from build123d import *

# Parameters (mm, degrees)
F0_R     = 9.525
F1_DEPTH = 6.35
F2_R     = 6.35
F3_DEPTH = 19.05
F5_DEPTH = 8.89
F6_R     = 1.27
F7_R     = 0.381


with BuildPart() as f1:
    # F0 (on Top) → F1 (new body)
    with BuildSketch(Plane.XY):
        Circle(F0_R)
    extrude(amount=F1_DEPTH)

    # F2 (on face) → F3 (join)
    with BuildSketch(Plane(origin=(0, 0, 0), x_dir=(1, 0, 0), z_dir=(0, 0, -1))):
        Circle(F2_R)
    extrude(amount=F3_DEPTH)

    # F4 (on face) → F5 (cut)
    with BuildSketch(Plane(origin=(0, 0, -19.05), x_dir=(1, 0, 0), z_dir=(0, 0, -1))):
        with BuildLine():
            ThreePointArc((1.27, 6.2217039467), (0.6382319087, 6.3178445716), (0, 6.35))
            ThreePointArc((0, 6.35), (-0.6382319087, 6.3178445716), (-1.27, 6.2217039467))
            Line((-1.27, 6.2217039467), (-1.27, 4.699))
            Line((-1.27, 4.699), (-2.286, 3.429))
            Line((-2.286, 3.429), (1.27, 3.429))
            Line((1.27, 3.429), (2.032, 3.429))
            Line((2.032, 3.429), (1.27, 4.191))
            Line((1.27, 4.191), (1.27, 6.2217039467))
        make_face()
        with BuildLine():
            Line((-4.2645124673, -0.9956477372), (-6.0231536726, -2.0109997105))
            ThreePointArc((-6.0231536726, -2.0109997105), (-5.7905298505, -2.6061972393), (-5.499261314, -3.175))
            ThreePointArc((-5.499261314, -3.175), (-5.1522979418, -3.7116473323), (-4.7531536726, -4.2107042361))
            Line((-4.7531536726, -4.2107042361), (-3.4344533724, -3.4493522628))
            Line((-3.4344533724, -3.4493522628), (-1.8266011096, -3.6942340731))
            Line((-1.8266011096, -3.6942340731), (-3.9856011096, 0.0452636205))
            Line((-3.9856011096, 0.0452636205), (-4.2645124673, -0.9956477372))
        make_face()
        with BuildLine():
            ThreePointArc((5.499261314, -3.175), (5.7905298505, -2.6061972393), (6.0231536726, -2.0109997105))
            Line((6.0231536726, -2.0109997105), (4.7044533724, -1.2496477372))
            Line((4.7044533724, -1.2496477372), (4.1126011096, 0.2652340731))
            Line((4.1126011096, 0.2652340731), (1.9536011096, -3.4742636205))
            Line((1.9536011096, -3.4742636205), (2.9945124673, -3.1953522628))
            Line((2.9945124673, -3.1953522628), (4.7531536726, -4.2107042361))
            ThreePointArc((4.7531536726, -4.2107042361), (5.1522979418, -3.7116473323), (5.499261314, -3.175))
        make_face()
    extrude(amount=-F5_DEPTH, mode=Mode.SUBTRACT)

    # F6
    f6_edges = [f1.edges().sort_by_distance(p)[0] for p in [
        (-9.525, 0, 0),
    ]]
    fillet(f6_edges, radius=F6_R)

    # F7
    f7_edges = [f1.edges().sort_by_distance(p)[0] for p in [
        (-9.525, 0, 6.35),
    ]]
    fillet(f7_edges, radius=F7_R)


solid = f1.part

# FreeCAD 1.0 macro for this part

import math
import FreeCAD as App
import Part
import Sketcher
Q = App.Units.Quantity


def edges_at(feature, points):
    """Names of the edges that pass closest to the given points."""
    edges = feature.Shape.Edges
    near = lambda p: min(range(len(edges)), key=lambda i: edges[i].distToShape(Part.Vertex(*p))[0])
    return sorted({f"Edge{near(p) + 1}" for p in points})

doc = App.newDocument("Part")
body = doc.addObject("PartDesign::Body", "Body")

# Sketch on XY plane
sketch1 = body.newObject("Sketcher::SketchObject", "Sketch")
sketch1.AttachmentSupport = (doc.getObject("XY_Plane"), [""])
sketch1.MapMode = "FlatFace"
sketch1.addGeometry(Part.Circle(App.Vector(0, 0, 0), App.Vector(0, 0, 1), 10), False)
sketch1.addConstraint([
    Sketcher.Constraint("Coincident", 0, 3, -1, 1),
    Sketcher.Constraint("Diameter", 0, Q("0.75 in")),
])
pad1 = body.newObject("PartDesign::Pad", "Pad")
pad1.Profile = sketch1
pad1.Length = Q("0.25 in")

# Sketch on XY plane
sketch2 = body.newObject("Sketcher::SketchObject", "Sketch001")
sketch2.AttachmentSupport = (doc.getObject("XY_Plane"), [""])
sketch2.MapMode = "FlatFace"
sketch2.addGeometry(Part.Circle(App.Vector(0, 0, 0), App.Vector(0, 0, 1), 6), False)
sketch2.addConstraint([
    Sketcher.Constraint("Coincident", 0, 3, -1, 1),
    Sketcher.Constraint("Diameter", 0, Q("0.5 in")),
])
pad2 = body.newObject("PartDesign::Pad", "Pad001")
pad2.Profile = sketch2
pad2.Length = Q("0.75 in")
pad2.Reversed = True

# Sketch on XY plane
sketch3 = body.newObject("Sketcher::SketchObject", "Sketch002")
sketch3.AttachmentSupport = (doc.getObject("XY_Plane"), [""])
sketch3.MapMode = "FlatFace"
sketch3.AttachmentOffset = App.Placement(App.Vector(0, 0, -0.75 * 25.4), App.Rotation())
sketch3.addGeometry([
    Part.ArcOfCircle(Part.Circle(App.Vector(0, 0, 0), App.Vector(0, 0, 1), 6.3), math.radians(-90), math.radians(-78.46)),  # 0
    Part.ArcOfCircle(Part.Circle(App.Vector(0, 0, 0), App.Vector(0, 0, 1), 6.3), math.radians(-101.54), math.radians(-90)),  # 1
    Part.LineSegment(App.Vector(-1.3, -6.2, 0), App.Vector(-1.3, -4.7, 0)),  # 2
    Part.LineSegment(App.Vector(-1.3, -4.7, 0), App.Vector(-2.3, -3.4, 0)),  # 3
    Part.LineSegment(App.Vector(-2.3, -3.4, 0), App.Vector(2, -3.4, 0)),  # 4
    Part.LineSegment(App.Vector(2, -3.4, 0), App.Vector(1.3, -4.2, 0)),  # 5
    Part.LineSegment(App.Vector(1.3, -4.2, 0), App.Vector(1.3, -6.2, 0)),  # 6
    Part.LineSegment(App.Vector(-4.3, 1, 0), App.Vector(-6, 2, 0)),  # 7
    Part.ArcOfCircle(Part.Circle(App.Vector(0, 0, 0), App.Vector(0, 0, 1), 6.3), math.radians(150), math.radians(161.54)),  # 8
    Part.ArcOfCircle(Part.Circle(App.Vector(0, 0, 0), App.Vector(0, 0, 1), 6.3), math.radians(138.46), math.radians(150)),  # 9
    Part.LineSegment(App.Vector(-4.8, 4.2, 0), App.Vector(-3.4, 3.4, 0)),  # 10
    Part.LineSegment(App.Vector(-3.4, 3.4, 0), App.Vector(-1.8, 3.7, 0)),  # 11
    Part.LineSegment(App.Vector(-1.8, 3.7, 0), App.Vector(-4, 0, 0)),  # 12
    Part.LineSegment(App.Vector(-4, 0, 0), App.Vector(-4.3, 1, 0)),  # 13
    Part.ArcOfCircle(Part.Circle(App.Vector(0, 0, 0), App.Vector(0, 0, 1), 6.3), math.radians(18.46), math.radians(30)),  # 14
    Part.LineSegment(App.Vector(6, 2, 0), App.Vector(4.7, 1.2, 0)),  # 15
    Part.LineSegment(App.Vector(4.7, 1.2, 0), App.Vector(4.1, -0.3, 0)),  # 16
    Part.LineSegment(App.Vector(4.1, -0.3, 0), App.Vector(2, 3.5, 0)),  # 17
    Part.LineSegment(App.Vector(2, 3.5, 0), App.Vector(3, 3.2, 0)),  # 18
    Part.LineSegment(App.Vector(3, 3.2, 0), App.Vector(4.8, 4.2, 0)),  # 19
    Part.ArcOfCircle(Part.Circle(App.Vector(0, 0, 0), App.Vector(0, 0, 1), 6.3), math.radians(30), math.radians(41.54)),  # 20
], False)
sketch3.addConstraint([
    Sketcher.Constraint("Tangent", 0, 1, 1, 2),
    Sketcher.Constraint("Coincident", 1, 1, 2, 1),
    Sketcher.Constraint("Coincident", 2, 2, 3, 1),
    Sketcher.Constraint("Coincident", 3, 2, 4, 1),
    Sketcher.Constraint("Coincident", 4, 2, 5, 1),
    Sketcher.Constraint("Coincident", 5, 2, 6, 1),
    Sketcher.Constraint("Coincident", 6, 2, 0, 2),
    Sketcher.Constraint("Coincident", 7, 2, 8, 2),
    Sketcher.Constraint("Tangent", 8, 1, 9, 2),
    Sketcher.Constraint("Coincident", 9, 1, 10, 1),
    Sketcher.Constraint("Coincident", 10, 2, 11, 1),
    Sketcher.Constraint("Coincident", 11, 2, 12, 1),
    Sketcher.Constraint("Coincident", 12, 2, 13, 1),
    Sketcher.Constraint("Coincident", 13, 2, 7, 1),
    Sketcher.Constraint("Coincident", 14, 1, 15, 1),
    Sketcher.Constraint("Coincident", 15, 2, 16, 1),
    Sketcher.Constraint("Coincident", 16, 2, 17, 1),
    Sketcher.Constraint("Coincident", 17, 2, 18, 1),
    Sketcher.Constraint("Coincident", 18, 2, 19, 1),
    Sketcher.Constraint("Coincident", 19, 2, 20, 2),
    Sketcher.Constraint("Tangent", 20, 1, 14, 2),
    Sketcher.Constraint("Vertical", 2),
    Sketcher.Constraint("Horizontal", 4),
    Sketcher.Constraint("Vertical", 6),
    Sketcher.Constraint("Coincident", 0, 3, -1, 1),
    Sketcher.Constraint("Coincident", 8, 3, -1, 1),
    Sketcher.Constraint("Coincident", 14, 3, -1, 1),
    Sketcher.Constraint("Equal", 0, 1),
    Sketcher.Constraint("Equal", 1, 8),
    Sketcher.Constraint("Equal", 8, 9),
    Sketcher.Constraint("Equal", 9, 14),
    Sketcher.Constraint("Equal", 14, 20),
    Sketcher.Constraint("PointOnObject", 0, 1, -2),
    Sketcher.Constraint("Parallel", 7, 10),
    Sketcher.Constraint("Perpendicular", 10, 12),
    Sketcher.Constraint("Perpendicular", 15, 17),
    Sketcher.Constraint("Perpendicular", 17, 19),
    Sketcher.Constraint("Horizontal", 1, 1, 6, 2),
    Sketcher.Constraint("Horizontal", 7, 2, 14, 1),
    Sketcher.Constraint("Horizontal", 9, 1, 19, 2),
    Sketcher.Constraint("Horizontal", 8, 1, 20, 1),
    Sketcher.Constraint("Equal", 3, 11),
    Sketcher.Constraint("Equal", 5, 13),
    Sketcher.Constraint("Equal", 10, 15),
    Sketcher.Constraint("Equal", 11, 16),
    Sketcher.Constraint("Equal", 12, 17),
    Sketcher.Constraint("Equal", 13, 18),
    Sketcher.Constraint("Equal", 7, 19),
    Sketcher.Constraint("Radius", 0, Q("0.25 in")),
    Sketcher.Constraint("Angle", 5, Q("-135 deg")),
    Sketcher.Constraint("Angle", 7, Q("150 deg")),
    Sketcher.Constraint("Angle", 13, Q("105 deg")),
    Sketcher.Constraint("Angle", 15, Q("-150 deg")),
    Sketcher.Constraint("Angle", 18, Q("-15 deg")),
    Sketcher.Constraint("DistanceX", 4, 1, 4, 2, Q("0.17 in")),
    Sketcher.Constraint("DistanceX", 2, 2, 5, 2, Q("0.1 in")),
    Sketcher.Constraint("Distance", 12, Q("0.17 in")),
    Sketcher.Constraint("DistanceX", 3, 2, -1, 1, Q("0.09 in")),
    Sketcher.Constraint("DistanceY", 2, 2, 3, 2, Q("0.05 in")),
    Sketcher.Constraint("DistanceX", 7, 2, 9, 1, Q("0.05 in")),
    Sketcher.Constraint("DistanceY", 2, 2, -1, 1, Q("0.185 in")),
    Sketcher.Constraint("DistanceY", -1, 1, 8, 1, Q("0.125 in")),
    Sketcher.Constraint("DistanceX", 11, 2, -1, 1, 1.826601),
])
pocket1 = body.newObject("PartDesign::Pocket", "Pocket")
pocket1.Profile = sketch3
pocket1.Length = Q("0.35 in")
pocket1.Reversed = True
doc.recompute()

fillet = body.newObject("PartDesign::Fillet", "Fillet")
fillet.Base = (pocket1, edges_at(pocket1, [(-9.525, 0, 0)]))
fillet.Radius = Q("0.05 in")
doc.recompute()

fillet2 = body.newObject("PartDesign::Fillet", "Fillet001")
fillet2.Base = (fillet, edges_at(fillet, [(-9.525, 0, 6.35)]))
fillet2.Radius = Q("0.015 in")

doc.recompute()
